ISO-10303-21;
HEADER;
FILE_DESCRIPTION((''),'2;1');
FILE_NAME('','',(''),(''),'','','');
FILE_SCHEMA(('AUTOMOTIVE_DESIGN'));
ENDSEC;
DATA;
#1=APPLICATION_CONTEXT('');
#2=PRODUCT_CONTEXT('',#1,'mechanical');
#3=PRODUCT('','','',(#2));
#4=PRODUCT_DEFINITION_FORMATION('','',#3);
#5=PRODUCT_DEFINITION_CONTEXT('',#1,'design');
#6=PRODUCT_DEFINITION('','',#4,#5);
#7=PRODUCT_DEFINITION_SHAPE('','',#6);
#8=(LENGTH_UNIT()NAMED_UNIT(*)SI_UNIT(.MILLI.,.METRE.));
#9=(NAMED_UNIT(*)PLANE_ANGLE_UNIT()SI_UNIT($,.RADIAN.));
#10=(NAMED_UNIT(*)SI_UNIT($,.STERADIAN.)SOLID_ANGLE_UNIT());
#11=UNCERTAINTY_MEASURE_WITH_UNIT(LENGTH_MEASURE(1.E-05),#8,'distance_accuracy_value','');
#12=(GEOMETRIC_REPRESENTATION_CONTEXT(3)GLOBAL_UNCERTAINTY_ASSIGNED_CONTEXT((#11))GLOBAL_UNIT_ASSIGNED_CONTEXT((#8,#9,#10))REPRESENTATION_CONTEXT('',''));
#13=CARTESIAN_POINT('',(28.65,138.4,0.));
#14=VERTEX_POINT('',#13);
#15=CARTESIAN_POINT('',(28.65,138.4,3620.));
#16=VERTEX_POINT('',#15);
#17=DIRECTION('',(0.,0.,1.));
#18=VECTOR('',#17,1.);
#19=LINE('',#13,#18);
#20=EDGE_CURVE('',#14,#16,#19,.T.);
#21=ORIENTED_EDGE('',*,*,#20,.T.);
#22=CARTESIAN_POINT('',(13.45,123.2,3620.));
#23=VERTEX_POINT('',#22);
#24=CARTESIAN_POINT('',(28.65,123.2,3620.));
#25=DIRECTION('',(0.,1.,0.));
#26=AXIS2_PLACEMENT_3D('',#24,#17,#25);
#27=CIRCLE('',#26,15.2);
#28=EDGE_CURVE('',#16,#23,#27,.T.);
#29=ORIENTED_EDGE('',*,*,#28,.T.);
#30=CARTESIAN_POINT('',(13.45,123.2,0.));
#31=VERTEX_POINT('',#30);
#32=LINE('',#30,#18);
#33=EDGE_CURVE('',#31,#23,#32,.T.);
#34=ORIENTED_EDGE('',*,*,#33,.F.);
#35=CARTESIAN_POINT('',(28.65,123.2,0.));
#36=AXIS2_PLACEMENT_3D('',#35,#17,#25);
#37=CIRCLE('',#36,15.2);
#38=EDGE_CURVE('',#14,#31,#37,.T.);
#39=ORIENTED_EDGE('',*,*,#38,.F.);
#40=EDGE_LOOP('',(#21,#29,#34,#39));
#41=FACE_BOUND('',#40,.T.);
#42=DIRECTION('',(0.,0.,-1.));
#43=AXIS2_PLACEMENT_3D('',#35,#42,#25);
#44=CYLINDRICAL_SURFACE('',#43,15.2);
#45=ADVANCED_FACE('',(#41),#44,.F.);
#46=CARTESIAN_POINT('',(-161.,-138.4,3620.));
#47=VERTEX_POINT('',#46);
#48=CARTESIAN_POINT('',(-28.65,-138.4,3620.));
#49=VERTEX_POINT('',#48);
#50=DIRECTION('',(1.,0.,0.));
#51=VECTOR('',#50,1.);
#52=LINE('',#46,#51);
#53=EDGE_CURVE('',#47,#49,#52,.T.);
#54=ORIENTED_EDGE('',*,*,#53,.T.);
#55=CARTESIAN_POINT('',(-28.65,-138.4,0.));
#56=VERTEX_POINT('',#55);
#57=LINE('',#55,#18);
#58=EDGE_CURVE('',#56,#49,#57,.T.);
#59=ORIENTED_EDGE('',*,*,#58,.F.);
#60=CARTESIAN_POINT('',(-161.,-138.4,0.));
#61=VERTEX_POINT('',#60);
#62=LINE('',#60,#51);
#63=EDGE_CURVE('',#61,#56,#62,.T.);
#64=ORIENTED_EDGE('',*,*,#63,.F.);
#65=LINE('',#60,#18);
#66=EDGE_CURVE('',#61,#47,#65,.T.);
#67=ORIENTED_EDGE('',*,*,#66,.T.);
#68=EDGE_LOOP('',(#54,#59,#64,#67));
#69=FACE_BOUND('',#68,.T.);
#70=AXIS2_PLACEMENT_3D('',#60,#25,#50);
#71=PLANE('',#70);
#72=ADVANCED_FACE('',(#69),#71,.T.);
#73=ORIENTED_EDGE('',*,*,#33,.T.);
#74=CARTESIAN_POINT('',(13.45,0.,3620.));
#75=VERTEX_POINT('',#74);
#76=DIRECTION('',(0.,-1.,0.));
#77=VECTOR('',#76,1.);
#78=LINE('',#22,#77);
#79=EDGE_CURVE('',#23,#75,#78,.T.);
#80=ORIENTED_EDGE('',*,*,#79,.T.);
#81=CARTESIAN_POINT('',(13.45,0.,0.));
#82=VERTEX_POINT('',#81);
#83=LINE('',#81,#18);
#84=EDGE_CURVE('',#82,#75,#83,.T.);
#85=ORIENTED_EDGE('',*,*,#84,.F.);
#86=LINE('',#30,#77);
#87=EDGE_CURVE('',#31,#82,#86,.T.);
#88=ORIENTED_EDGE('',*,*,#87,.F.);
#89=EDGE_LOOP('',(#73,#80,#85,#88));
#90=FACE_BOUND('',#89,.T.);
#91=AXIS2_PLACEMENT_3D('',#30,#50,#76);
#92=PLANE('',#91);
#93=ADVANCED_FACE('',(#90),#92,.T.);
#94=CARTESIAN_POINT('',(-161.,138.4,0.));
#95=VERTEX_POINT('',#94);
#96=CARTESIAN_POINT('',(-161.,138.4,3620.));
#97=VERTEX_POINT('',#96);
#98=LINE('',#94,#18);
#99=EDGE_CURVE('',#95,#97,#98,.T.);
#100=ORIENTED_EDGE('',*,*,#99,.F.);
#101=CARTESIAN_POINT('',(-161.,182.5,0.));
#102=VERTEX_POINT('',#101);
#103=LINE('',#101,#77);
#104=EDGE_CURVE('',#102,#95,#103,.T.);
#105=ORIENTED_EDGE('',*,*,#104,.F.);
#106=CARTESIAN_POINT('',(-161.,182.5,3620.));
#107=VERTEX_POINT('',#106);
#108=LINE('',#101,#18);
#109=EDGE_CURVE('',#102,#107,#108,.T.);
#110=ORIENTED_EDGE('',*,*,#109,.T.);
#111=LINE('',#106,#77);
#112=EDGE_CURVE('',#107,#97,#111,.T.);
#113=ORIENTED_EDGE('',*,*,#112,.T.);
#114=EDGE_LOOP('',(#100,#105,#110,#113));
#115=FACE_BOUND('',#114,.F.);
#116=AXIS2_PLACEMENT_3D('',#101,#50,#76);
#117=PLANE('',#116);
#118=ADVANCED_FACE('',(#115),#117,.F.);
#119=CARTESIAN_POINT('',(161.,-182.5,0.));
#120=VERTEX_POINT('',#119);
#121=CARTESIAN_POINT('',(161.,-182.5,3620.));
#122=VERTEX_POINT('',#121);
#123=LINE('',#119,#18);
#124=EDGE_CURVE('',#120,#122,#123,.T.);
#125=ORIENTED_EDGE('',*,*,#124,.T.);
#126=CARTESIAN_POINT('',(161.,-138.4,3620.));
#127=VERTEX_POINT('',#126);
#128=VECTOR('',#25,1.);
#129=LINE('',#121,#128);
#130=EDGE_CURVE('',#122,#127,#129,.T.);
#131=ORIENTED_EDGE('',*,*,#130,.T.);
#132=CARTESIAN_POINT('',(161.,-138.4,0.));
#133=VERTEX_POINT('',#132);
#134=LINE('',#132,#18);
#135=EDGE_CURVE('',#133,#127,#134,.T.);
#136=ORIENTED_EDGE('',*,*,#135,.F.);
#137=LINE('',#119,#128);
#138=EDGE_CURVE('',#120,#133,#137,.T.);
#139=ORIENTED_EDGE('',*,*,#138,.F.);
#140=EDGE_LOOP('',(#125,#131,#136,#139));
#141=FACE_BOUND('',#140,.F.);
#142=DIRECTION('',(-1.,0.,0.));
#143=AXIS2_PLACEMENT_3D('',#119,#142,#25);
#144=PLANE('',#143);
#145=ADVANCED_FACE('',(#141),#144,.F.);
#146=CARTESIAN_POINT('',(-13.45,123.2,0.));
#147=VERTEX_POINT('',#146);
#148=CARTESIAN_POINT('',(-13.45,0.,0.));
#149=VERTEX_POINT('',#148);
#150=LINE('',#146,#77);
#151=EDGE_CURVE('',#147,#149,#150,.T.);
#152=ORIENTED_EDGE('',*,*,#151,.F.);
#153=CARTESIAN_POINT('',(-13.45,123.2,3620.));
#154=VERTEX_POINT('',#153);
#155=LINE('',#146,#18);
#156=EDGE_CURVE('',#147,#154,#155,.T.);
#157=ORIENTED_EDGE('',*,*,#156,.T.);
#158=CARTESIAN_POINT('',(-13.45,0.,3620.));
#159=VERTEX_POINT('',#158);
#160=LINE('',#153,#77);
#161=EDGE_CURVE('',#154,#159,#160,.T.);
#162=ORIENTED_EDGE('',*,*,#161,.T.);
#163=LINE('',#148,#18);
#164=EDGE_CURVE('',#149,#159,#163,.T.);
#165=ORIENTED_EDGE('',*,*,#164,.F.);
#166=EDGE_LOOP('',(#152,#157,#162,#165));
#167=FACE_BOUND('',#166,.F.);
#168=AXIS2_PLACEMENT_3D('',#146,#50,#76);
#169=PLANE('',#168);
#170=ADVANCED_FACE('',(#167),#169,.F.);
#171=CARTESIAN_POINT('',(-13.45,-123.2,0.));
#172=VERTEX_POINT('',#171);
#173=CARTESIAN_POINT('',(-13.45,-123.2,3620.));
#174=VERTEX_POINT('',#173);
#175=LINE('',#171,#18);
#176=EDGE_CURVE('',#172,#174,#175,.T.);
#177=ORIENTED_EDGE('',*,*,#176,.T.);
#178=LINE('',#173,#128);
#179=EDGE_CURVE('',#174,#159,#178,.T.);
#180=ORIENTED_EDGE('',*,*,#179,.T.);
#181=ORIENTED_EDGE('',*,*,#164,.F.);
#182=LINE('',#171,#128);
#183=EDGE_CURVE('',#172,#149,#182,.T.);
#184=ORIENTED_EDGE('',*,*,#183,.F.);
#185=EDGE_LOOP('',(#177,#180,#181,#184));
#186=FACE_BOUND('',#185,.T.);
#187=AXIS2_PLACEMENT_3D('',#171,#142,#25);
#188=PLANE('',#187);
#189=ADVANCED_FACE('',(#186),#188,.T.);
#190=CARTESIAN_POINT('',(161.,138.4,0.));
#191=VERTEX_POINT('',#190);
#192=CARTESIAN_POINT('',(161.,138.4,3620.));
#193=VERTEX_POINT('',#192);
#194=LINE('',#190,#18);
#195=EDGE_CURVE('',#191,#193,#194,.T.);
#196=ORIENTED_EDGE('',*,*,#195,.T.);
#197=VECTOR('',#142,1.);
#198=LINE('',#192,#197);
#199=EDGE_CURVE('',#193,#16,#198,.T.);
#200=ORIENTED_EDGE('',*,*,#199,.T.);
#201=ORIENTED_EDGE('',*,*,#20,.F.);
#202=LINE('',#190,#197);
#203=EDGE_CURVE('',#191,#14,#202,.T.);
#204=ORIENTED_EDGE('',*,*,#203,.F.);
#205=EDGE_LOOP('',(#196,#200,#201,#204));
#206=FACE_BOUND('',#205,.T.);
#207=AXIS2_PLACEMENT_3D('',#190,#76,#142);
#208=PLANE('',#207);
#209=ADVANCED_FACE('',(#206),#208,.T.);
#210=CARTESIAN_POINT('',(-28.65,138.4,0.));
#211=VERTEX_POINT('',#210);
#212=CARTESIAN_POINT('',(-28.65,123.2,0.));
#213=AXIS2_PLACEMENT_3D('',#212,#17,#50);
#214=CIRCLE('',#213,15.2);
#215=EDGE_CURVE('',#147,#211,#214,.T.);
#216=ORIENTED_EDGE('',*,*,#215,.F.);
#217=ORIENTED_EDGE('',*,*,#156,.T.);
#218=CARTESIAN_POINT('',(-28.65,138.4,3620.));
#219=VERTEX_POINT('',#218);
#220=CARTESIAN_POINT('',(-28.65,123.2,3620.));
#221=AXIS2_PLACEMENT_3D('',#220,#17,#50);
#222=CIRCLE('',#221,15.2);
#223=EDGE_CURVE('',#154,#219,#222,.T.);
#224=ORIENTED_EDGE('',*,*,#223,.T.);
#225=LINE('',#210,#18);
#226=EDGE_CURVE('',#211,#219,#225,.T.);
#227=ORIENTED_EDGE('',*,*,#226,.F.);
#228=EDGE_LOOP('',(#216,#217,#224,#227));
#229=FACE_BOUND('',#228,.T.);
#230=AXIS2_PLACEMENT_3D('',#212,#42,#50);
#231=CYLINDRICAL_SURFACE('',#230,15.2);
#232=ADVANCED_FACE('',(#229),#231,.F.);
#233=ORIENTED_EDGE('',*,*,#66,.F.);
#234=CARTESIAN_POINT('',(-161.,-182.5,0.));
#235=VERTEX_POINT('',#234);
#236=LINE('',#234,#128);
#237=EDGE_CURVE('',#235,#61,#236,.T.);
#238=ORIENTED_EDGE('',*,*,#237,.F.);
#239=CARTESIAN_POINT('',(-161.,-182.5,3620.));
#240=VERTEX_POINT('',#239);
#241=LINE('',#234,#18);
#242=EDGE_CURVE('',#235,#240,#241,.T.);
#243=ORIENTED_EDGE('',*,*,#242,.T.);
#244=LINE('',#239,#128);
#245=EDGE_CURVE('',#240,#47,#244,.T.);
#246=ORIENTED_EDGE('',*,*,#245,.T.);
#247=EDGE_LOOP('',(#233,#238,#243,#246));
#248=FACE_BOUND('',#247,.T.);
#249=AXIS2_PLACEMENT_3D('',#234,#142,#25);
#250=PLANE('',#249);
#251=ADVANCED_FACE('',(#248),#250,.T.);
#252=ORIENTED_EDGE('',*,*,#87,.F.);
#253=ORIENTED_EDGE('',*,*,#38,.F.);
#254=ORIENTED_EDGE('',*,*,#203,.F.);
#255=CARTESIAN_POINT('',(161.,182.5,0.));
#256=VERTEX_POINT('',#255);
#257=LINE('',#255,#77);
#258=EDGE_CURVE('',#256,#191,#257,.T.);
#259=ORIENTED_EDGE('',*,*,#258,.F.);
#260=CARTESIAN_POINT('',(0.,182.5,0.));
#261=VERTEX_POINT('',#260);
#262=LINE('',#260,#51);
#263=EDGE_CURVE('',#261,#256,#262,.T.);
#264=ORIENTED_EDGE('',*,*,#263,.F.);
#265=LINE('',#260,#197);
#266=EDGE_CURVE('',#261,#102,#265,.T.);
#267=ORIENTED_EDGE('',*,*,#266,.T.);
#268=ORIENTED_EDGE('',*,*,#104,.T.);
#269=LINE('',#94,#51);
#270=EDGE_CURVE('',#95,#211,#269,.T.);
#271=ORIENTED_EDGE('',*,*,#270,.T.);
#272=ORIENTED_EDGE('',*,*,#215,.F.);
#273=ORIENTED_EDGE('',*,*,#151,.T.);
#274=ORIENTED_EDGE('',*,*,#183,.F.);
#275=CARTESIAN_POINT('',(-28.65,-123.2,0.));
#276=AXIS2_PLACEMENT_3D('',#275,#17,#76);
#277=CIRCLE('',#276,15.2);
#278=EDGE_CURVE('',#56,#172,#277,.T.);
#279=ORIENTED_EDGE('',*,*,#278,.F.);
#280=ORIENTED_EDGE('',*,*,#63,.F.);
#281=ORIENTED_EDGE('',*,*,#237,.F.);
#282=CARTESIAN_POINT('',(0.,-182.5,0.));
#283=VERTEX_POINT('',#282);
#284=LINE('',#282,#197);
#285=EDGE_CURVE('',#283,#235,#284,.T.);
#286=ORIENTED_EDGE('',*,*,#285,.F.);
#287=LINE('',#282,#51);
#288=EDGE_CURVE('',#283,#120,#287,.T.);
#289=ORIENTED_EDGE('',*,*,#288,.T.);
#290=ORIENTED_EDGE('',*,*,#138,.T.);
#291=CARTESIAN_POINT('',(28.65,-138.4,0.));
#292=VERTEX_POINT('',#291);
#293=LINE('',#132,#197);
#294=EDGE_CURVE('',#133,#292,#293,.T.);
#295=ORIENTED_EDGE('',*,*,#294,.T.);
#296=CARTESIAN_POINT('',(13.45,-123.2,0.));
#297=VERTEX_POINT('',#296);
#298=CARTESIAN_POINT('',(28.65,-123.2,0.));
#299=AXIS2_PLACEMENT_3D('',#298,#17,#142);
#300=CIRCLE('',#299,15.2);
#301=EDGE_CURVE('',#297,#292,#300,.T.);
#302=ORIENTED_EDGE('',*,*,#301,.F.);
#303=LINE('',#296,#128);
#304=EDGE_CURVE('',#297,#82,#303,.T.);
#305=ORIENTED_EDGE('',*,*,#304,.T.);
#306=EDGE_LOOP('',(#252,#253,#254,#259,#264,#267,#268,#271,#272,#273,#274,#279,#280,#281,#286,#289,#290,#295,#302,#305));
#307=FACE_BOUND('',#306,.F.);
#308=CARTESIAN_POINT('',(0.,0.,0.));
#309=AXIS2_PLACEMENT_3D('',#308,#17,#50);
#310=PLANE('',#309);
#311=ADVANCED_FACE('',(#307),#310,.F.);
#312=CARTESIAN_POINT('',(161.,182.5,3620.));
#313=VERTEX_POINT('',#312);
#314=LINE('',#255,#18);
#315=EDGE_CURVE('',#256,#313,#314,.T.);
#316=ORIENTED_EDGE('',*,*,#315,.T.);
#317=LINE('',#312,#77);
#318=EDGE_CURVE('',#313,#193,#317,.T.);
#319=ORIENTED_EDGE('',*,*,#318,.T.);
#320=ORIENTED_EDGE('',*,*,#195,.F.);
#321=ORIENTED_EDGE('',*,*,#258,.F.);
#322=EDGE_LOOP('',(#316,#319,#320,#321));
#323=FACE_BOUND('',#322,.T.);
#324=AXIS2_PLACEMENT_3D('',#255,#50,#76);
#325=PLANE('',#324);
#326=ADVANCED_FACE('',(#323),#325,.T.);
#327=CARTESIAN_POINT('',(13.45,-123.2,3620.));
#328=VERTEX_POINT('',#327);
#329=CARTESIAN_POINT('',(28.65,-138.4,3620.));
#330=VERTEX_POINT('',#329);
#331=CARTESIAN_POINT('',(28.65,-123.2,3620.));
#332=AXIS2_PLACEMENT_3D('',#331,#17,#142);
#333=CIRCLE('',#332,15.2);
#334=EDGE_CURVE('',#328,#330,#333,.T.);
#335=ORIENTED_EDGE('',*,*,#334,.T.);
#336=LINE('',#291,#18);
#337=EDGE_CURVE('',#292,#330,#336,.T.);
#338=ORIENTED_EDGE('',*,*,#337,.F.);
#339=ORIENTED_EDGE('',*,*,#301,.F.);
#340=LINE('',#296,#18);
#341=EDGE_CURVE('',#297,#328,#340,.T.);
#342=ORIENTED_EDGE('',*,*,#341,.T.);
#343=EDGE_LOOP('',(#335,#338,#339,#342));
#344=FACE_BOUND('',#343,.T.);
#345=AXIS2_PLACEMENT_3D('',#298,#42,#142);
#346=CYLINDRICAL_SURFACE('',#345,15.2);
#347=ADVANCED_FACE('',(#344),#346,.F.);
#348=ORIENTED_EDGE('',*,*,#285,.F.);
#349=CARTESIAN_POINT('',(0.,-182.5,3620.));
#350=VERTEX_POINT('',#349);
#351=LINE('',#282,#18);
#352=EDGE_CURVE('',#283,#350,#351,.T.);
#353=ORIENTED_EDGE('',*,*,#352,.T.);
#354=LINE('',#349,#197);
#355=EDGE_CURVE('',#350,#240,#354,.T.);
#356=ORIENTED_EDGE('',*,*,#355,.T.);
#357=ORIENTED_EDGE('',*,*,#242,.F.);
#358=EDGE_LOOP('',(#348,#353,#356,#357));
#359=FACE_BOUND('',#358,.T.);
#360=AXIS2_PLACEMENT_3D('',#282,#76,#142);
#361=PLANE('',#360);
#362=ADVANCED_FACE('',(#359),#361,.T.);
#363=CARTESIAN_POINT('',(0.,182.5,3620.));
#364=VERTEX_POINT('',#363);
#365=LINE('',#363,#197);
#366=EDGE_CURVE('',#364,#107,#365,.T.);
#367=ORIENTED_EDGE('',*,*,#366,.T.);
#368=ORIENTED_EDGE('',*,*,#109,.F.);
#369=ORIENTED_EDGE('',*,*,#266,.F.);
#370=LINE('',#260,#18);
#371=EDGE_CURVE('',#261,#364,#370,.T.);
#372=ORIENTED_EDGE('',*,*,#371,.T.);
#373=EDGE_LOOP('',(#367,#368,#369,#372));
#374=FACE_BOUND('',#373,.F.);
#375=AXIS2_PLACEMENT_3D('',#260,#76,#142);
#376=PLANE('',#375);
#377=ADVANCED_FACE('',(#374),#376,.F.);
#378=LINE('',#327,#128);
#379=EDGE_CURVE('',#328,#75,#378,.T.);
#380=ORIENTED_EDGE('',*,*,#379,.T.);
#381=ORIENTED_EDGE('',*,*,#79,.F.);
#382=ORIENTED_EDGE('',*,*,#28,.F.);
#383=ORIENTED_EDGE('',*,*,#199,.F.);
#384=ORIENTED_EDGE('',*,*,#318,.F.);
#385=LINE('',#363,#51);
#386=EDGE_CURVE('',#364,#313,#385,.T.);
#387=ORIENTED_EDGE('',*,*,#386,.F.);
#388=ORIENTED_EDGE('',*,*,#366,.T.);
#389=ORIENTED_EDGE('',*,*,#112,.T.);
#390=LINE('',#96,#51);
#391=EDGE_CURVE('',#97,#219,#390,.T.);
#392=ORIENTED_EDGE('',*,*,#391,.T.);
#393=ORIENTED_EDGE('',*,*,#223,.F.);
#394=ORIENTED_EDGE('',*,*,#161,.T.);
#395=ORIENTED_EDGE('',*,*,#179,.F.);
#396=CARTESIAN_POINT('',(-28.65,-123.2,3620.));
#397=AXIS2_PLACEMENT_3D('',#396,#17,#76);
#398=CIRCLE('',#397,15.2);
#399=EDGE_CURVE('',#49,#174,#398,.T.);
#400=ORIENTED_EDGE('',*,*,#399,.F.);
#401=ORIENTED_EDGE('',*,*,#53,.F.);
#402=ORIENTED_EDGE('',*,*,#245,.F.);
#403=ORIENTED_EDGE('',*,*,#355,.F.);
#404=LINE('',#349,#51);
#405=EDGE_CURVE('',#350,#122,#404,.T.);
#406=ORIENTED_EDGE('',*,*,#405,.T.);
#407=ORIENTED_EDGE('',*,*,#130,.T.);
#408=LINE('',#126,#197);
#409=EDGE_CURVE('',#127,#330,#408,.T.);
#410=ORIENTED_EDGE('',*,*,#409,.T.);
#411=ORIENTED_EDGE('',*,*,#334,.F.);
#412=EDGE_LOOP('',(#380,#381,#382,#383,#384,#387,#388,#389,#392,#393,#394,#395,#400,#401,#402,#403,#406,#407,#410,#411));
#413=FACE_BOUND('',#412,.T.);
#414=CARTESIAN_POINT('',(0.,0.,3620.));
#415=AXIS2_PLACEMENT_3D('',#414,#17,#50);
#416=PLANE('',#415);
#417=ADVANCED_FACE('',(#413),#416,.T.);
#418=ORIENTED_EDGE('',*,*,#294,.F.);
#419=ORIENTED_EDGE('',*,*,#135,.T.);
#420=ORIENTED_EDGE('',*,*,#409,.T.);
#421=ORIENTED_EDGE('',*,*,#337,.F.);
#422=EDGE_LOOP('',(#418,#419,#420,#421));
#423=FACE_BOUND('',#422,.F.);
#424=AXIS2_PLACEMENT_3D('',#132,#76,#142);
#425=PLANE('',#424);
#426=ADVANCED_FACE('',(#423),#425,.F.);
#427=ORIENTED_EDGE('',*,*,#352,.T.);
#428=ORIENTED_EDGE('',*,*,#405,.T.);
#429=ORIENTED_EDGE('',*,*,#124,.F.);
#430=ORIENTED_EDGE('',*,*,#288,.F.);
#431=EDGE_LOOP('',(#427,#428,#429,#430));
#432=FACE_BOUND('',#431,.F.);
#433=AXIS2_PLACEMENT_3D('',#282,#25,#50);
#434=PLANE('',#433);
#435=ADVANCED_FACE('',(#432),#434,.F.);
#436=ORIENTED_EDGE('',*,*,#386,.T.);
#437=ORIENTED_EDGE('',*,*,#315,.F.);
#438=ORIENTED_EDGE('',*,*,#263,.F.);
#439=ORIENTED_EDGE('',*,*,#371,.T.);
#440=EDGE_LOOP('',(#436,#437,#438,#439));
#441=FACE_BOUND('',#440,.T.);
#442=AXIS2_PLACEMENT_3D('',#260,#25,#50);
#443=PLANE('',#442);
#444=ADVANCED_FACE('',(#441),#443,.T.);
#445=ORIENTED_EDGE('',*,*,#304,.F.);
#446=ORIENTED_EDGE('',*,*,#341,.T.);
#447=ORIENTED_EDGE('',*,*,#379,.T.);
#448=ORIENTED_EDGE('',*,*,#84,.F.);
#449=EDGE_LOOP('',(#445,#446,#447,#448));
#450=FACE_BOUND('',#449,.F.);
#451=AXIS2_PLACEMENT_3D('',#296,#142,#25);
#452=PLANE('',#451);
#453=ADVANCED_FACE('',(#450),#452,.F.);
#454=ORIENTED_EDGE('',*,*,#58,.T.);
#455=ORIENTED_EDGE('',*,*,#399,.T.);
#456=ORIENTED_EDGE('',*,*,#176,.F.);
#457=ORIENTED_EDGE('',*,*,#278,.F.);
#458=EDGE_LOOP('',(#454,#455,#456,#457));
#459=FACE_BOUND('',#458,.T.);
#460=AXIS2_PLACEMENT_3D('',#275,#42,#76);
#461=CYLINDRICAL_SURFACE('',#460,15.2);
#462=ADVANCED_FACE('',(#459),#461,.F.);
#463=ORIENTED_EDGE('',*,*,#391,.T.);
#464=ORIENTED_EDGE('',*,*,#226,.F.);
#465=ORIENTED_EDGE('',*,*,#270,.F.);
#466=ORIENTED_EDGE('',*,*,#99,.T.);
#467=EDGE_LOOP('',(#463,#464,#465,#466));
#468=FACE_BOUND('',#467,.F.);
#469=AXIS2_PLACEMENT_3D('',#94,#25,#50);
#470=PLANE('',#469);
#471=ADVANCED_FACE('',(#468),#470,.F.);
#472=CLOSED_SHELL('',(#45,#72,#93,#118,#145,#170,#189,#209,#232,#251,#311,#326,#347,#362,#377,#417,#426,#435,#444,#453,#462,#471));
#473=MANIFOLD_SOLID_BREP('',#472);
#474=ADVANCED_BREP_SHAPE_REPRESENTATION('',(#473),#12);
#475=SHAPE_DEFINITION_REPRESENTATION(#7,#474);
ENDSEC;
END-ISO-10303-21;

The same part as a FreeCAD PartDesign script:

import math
import FreeCAD as App
import Part
import Sketcher
from FreeCAD import Vector

doc = App.newDocument("Part")
body = doc.addObject("PartDesign::Body", "Body")

sketch1 = doc.addObject("Sketcher::SketchObject", "Sketch")
body.addObject(sketch1)
sketch1.AttachmentSupport = (doc.XY_Plane, [""])
sketch1.MapMode = "FlatFace"
sketch1.addGeometry(Part.LineSegment(Vector(-161, -138.4, 0), Vector(-161, -182.5, 0)), False)
sketch1.addGeometry(Part.LineSegment(Vector(-161, -182.5, 0), Vector(161, -182.5, 0)), False)
sketch1.addGeometry(Part.LineSegment(Vector(161, -182.5, 0), Vector(161, -138.4, 0)), False)
sketch1.addGeometry(Part.LineSegment(Vector(161, -138.4, 0), Vector(28.65, -138.4, 0)), False)
sketch1.addGeometry(Part.ArcOfCircle(Part.Circle(Vector(28.65, -123.2, 0), Vector(0, 0, 1), 15.2), math.radians(180), math.radians(270)), False)
sketch1.addGeometry(Part.LineSegment(Vector(13.45, -123.2, 0), Vector(13.45, 123.2, 0)), False)
sketch1.addGeometry(Part.ArcOfCircle(Part.Circle(Vector(28.65, 123.2, 0), Vector(0, 0, 1), 15.2), math.radians(90), math.radians(180)), False)
sketch1.addGeometry(Part.LineSegment(Vector(28.65, 138.4, 0), Vector(161, 138.4, 0)), False)
sketch1.addGeometry(Part.LineSegment(Vector(161, 138.4, 0), Vector(161, 182.5, 0)), False)
sketch1.addGeometry(Part.LineSegment(Vector(161, 182.5, 0), Vector(-161, 182.5, 0)), False)
sketch1.addGeometry(Part.LineSegment(Vector(-161, 182.5, 0), Vector(-161, 138.4, 0)), False)
sketch1.addGeometry(Part.LineSegment(Vector(-161, 138.4, 0), Vector(-28.65, 138.4, 0)), False)
sketch1.addGeometry(Part.ArcOfCircle(Part.Circle(Vector(-28.65, 123.2, 0), Vector(0, 0, 1), 15.2), math.radians(0), math.radians(90)), False)
sketch1.addGeometry(Part.LineSegment(Vector(-13.45, 123.2, 0), Vector(-13.45, -123.2, 0)), False)
sketch1.addGeometry(Part.ArcOfCircle(Part.Circle(Vector(-28.65, -123.2, 0), Vector(0, 0, 1), 15.2), math.radians(-90), math.radians(0)), False)
sketch1.addGeometry(Part.LineSegment(Vector(-28.65, -138.4, 0), Vector(-161, -138.4, 0)), False)
sketch1.addConstraint(Sketcher.Constraint("Coincident", 0, 2, 1, 1))
sketch1.addConstraint(Sketcher.Constraint("Coincident", 1, 2, 2, 1))
sketch1.addConstraint(Sketcher.Constraint("Coincident", 2, 2, 3, 1))
sketch1.addConstraint(Sketcher.Constraint("Tangent", 3, 2, 4, 2))
sketch1.addConstraint(Sketcher.Constraint("Tangent", 4, 1, 5, 1))
sketch1.addConstraint(Sketcher.Constraint("Tangent", 5, 2, 6, 2))
sketch1.addConstraint(Sketcher.Constraint("Tangent", 6, 1, 7, 1))
sketch1.addConstraint(Sketcher.Constraint("Coincident", 7, 2, 8, 1))
sketch1.addConstraint(Sketcher.Constraint("Coincident", 8, 2, 9, 1))
sketch1.addConstraint(Sketcher.Constraint("Coincident", 9, 2, 10, 1))
sketch1.addConstraint(Sketcher.Constraint("Coincident", 10, 2, 11, 1))
sketch1.addConstraint(Sketcher.Constraint("Tangent", 11, 2, 12, 2))
sketch1.addConstraint(Sketcher.Constraint("Tangent", 12, 1, 13, 1))
sketch1.addConstraint(Sketcher.Constraint("Tangent", 13, 2, 14, 2))
sketch1.addConstraint(Sketcher.Constraint("Tangent", 14, 1, 15, 1))
sketch1.addConstraint(Sketcher.Constraint("Coincident", 15, 2, 0, 1))
sketch1.addConstraint(Sketcher.Constraint("Vertical", 0))
sketch1.addConstraint(Sketcher.Constraint("Horizontal", 1))
sketch1.addConstraint(Sketcher.Constraint("Vertical", 2))
sketch1.addConstraint(Sketcher.Constraint("Horizontal", 3))
sketch1.addConstraint(Sketcher.Constraint("Vertical", 5))
sketch1.addConstraint(Sketcher.Constraint("Horizontal", 7))
sketch1.addConstraint(Sketcher.Constraint("Vertical", 8))
sketch1.addConstraint(Sketcher.Constraint("Horizontal", 9))
sketch1.addConstraint(Sketcher.Constraint("Vertical", 10))
sketch1.addConstraint(Sketcher.Constraint("Horizontal", 11))
sketch1.addConstraint(Sketcher.Constraint("Vertical", 13))
sketch1.addConstraint(Sketcher.Constraint("Horizontal", 15))
sketch1.addConstraint(Sketcher.Constraint("Equal", 4, 6))
sketch1.addConstraint(Sketcher.Constraint("Equal", 6, 12))
sketch1.addConstraint(Sketcher.Constraint("Equal", 12, 14))
sketch1.addConstraint(Sketcher.Constraint("Symmetric", 4, 3, 12, 3, -1, 1))
sketch1.addConstraint(Sketcher.Constraint("Symmetric", 0, 2, 8, 2, -1, 1))
sketch1.addConstraint(Sketcher.Constraint("Symmetric", 7, 2, 10, 2, -2))
sketch1.addConstraint(Sketcher.Constraint("Symmetric", 2, 2, 15, 2, -2))
sketch1.addConstraint(Sketcher.Constraint("Radius", 4, 15.2))
sketch1.addConstraint(Sketcher.Constraint("DistanceY", 0, 2, 0, 1, 44.1))
sketch1.addConstraint(Sketcher.Constraint("DistanceX", 0, 2, -1, 1, 161.0))
sketch1.addConstraint(Sketcher.Constraint("DistanceY", 0, 2, -1, 1, 182.5))
sketch1.addConstraint(Sketcher.Constraint("DistanceX", -1, 1, 4, 1, 13.45))
pad1 = doc.addObject("PartDesign::Pad", "Pad")
body.addObject(pad1)
pad1.Profile = sketch1
pad1.Length = 3620

doc.recompute()
